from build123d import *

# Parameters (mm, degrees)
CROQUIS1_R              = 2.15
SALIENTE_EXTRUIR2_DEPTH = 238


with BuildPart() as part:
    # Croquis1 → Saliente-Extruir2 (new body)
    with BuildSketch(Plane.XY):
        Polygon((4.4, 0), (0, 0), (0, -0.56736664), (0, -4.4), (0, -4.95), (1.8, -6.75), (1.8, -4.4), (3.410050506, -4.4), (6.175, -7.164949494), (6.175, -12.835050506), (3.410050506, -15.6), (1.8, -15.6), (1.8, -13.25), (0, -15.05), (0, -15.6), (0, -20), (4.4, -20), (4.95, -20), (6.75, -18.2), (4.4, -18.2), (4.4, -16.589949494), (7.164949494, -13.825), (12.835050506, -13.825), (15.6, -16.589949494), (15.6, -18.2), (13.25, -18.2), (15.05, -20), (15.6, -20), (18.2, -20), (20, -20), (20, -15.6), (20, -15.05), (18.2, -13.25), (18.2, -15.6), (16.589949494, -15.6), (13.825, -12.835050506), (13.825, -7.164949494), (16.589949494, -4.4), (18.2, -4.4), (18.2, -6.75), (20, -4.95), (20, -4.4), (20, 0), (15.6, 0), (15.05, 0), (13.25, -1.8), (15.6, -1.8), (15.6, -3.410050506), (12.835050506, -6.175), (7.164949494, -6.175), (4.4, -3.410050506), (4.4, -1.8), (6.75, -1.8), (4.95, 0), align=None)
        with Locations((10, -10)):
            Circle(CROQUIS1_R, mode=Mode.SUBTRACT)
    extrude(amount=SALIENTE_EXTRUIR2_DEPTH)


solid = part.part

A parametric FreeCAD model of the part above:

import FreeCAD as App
import Part
import Sketcher
from FreeCAD import Vector
Q = App.Units.Quantity

doc = App.newDocument("Part")
body = doc.addObject("PartDesign::Body", "Body")

sketch1 = doc.addObject("Sketcher::SketchObject", "Sketch")
body.addObject(sketch1)
sketch1.AttachmentSupport = (doc.XY_Plane, [""])
sketch1.MapMode = "FlatFace"
sketch1.addGeometry([
    Part.LineSegment(Vector(0, 0, 0), Vector(0, -5, 0)),
    Part.LineSegment(Vector(0, -5, 0), Vector(1.8, -6.8, 0)),
    Part.LineSegment(Vector(1.8, -6.8, 0), Vector(1.8, -4.4, 0)),
    Part.LineSegment(Vector(1.8, -4.4, 0), Vector(3.4, -4.4, 0)),
    Part.LineSegment(Vector(3.4, -4.4, 0), Vector(6.2, -7.2, 0)),
    Part.LineSegment(Vector(6.2, -7.2, 0), Vector(6.2, -12.8, 0)),
    Part.LineSegment(Vector(6.2, -12.8, 0), Vector(3.4, -15.6, 0)),
    Part.LineSegment(Vector(3.4, -15.6, 0), Vector(1.8, -15.6, 0)),
    Part.LineSegment(Vector(1.8, -15.6, 0), Vector(1.8, -13.2, 0)),
    Part.LineSegment(Vector(1.8, -13.2, 0), Vector(0, -15.1, 0)),
    Part.LineSegment(Vector(0, -15.1, 0), Vector(0, -20, 0)),
    Part.LineSegment(Vector(0, -20, 0), Vector(5, -20, 0)),
    Part.LineSegment(Vector(5, -20, 0), Vector(6.8, -18.2, 0)),
    Part.LineSegment(Vector(6.8, -18.2, 0), Vector(4.4, -18.2, 0)),
    Part.LineSegment(Vector(4.4, -18.2, 0), Vector(4.4, -16.6, 0)),
    Part.LineSegment(Vector(4.4, -16.6, 0), Vector(7.2, -13.8, 0)),
    Part.LineSegment(Vector(7.2, -13.8, 0), Vector(12.8, -13.8, 0)),
    Part.LineSegment(Vector(12.8, -13.8, 0), Vector(15.6, -16.6, 0)),
    Part.LineSegment(Vector(15.6, -16.6, 0), Vector(15.6, -18.2, 0)),
    Part.LineSegment(Vector(15.6, -18.2, 0), Vector(13.2, -18.2, 0)),
    Part.LineSegment(Vector(13.2, -18.2, 0), Vector(15.1, -20, 0)),
    Part.LineSegment(Vector(15.1, -20, 0), Vector(20, -20, 0)),
    Part.LineSegment(Vector(20, -20, 0), Vector(20, -15.1, 0)),
    Part.LineSegment(Vector(20, -15.1, 0), Vector(18.2, -13.2, 0)),
    Part.LineSegment(Vector(18.2, -13.2, 0), Vector(18.2, -15.6, 0)),
    Part.LineSegment(Vector(18.2, -15.6, 0), Vector(16.6, -15.6, 0)),
    Part.LineSegment(Vector(16.6, -15.6, 0), Vector(13.8, -12.8, 0)),
    Part.LineSegment(Vector(13.8, -12.8, 0), Vector(13.8, -7.2, 0)),
    Part.LineSegment(Vector(13.8, -7.2, 0), Vector(16.6, -4.4, 0)),
    Part.LineSegment(Vector(16.6, -4.4, 0), Vector(18.2, -4.4, 0)),
    Part.LineSegment(Vector(18.2, -4.4, 0), Vector(18.2, -6.8, 0)),
    Part.LineSegment(Vector(18.2, -6.8, 0), Vector(20, -5, 0)),
    Part.LineSegment(Vector(20, -5, 0), Vector(20, 0, 0)),
    Part.LineSegment(Vector(20, 0, 0), Vector(15.1, 0, 0)),
    Part.LineSegment(Vector(15.1, 0, 0), Vector(13.2, -1.8, 0)),
    Part.LineSegment(Vector(13.2, -1.8, 0), Vector(15.6, -1.8, 0)),
    Part.LineSegment(Vector(15.6, -1.8, 0), Vector(15.6, -3.4, 0)),
    Part.LineSegment(Vector(15.6, -3.4, 0), Vector(12.8, -6.2, 0)),
    Part.LineSegment(Vector(12.8, -6.2, 0), Vector(7.2, -6.2, 0)),
    Part.LineSegment(Vector(7.2, -6.2, 0), Vector(4.4, -3.4, 0)),
    Part.LineSegment(Vector(4.4, -3.4, 0), Vector(4.4, -1.8, 0)),
    Part.LineSegment(Vector(4.4, -1.8, 0), Vector(6.8, -1.8, 0)),
    Part.LineSegment(Vector(6.8, -1.8, 0), Vector(5, 0, 0)),
    Part.LineSegment(Vector(5, 0, 0), Vector(0, 0, 0)),
    Part.Circle(Vector(10, -10, 0), Vector(0, 0, 1), 2.1),
], False)
sketch1.addConstraint([
    Sketcher.Constraint("Coincident", 0, 2, 1, 1),
    Sketcher.Constraint("Coincident", 1, 2, 2, 1),
    Sketcher.Constraint("Coincident", 2, 2, 3, 1),
    Sketcher.Constraint("Coincident", 3, 2, 4, 1),
    Sketcher.Constraint("Coincident", 4, 2, 5, 1),
    Sketcher.Constraint("Coincident", 5, 2, 6, 1),
    Sketcher.Constraint("Coincident", 6, 2, 7, 1),
    Sketcher.Constraint("Coincident", 7, 2, 8, 1),
    Sketcher.Constraint("Coincident", 8, 2, 9, 1),
    Sketcher.Constraint("Coincident", 9, 2, 10, 1),
    Sketcher.Constraint("Coincident", 10, 2, 11, 1),
    Sketcher.Constraint("Coincident", 11, 2, 12, 1),
    Sketcher.Constraint("Coincident", 12, 2, 13, 1),
    Sketcher.Constraint("Coincident", 13, 2, 14, 1),
    Sketcher.Constraint("Coincident", 14, 2, 15, 1),
    Sketcher.Constraint("Coincident", 15, 2, 16, 1),
    Sketcher.Constraint("Coincident", 16, 2, 17, 1),
    Sketcher.Constraint("Coincident", 17, 2, 18, 1),
    Sketcher.Constraint("Coincident", 18, 2, 19, 1),
    Sketcher.Constraint("Coincident", 19, 2, 20, 1),
    Sketcher.Constraint("Coincident", 20, 2, 21, 1),
    Sketcher.Constraint("Coincident", 21, 2, 22, 1),
    Sketcher.Constraint("Coincident", 22, 2, 23, 1),
    Sketcher.Constraint("Coincident", 23, 2, 24, 1),
    Sketcher.Constraint("Coincident", 24, 2, 25, 1),
    Sketcher.Constraint("Coincident", 25, 2, 26, 1),
    Sketcher.Constraint("Coincident", 26, 2, 27, 1),
    Sketcher.Constraint("Coincident", 27, 2, 28, 1),
    Sketcher.Constraint("Coincident", 28, 2, 29, 1),
    Sketcher.Constraint("Coincident", 29, 2, 30, 1),
    Sketcher.Constraint("Coincident", 30, 2, 31, 1),
    Sketcher.Constraint("Coincident", 31, 2, 32, 1),
    Sketcher.Constraint("Coincident", 32, 2, 33, 1),
    Sketcher.Constraint("Coincident", 33, 2, 34, 1),
    Sketcher.Constraint("Coincident", 34, 2, 35, 1),
    Sketcher.Constraint("Coincident", 35, 2, 36, 1),
    Sketcher.Constraint("Coincident", 36, 2, 37, 1),
    Sketcher.Constraint("Coincident", 37, 2, 38, 1),
    Sketcher.Constraint("Coincident", 38, 2, 39, 1),
    Sketcher.Constraint("Coincident", 39, 2, 40, 1),
    Sketcher.Constraint("Coincident", 40, 2, 41, 1),
    Sketcher.Constraint("Coincident", 41, 2, 42, 1),
    Sketcher.Constraint("Coincident", 42, 2, 43, 1),
    Sketcher.Constraint("Coincident", 43, 2, 0, 1),
    Sketcher.Constraint("Vertical", 0),
    Sketcher.Constraint("Vertical", 2),
    Sketcher.Constraint("Horizontal", 3),
    Sketcher.Constraint("Vertical", 5),
    Sketcher.Constraint("Horizontal", 7),
    Sketcher.Constraint("Vertical", 8),
    Sketcher.Constraint("Vertical", 10),
    Sketcher.Constraint("Horizontal", 11),
    Sketcher.Constraint("Horizontal", 13),
    Sketcher.Constraint("Vertical", 14),
    Sketcher.Constraint("Horizontal", 16),
    Sketcher.Constraint("Vertical", 18),
    Sketcher.Constraint("Horizontal", 19),
    Sketcher.Constraint("Horizontal", 21),
    Sketcher.Constraint("Vertical", 22),
    Sketcher.Constraint("Vertical", 24),
    Sketcher.Constraint("Horizontal", 25),
    Sketcher.Constraint("Vertical", 27),
    Sketcher.Constraint("Horizontal", 29),
    Sketcher.Constraint("Vertical", 30),
    Sketcher.Constraint("Vertical", 32),
    Sketcher.Constraint("Horizontal", 33),
    Sketcher.Constraint("Horizontal", 35),
    Sketcher.Constraint("Vertical", 36),
    Sketcher.Constraint("Horizontal", 38),
    Sketcher.Constraint("Vertical", 40),
    Sketcher.Constraint("Horizontal", 41),
    Sketcher.Constraint("Horizontal", 43),
    Sketcher.Constraint("Coincident", 43, 2, -1, 1),
    Sketcher.Constraint("PointOnObject", 9, 2, -2),
    Sketcher.Constraint("PointOnObject", 32, 2, -1),
    Sketcher.Constraint("Parallel", 1, 4),
    Sketcher.Constraint("Perpendicular", 4, 6),
    Sketcher.Constraint("Parallel", 6, 9),
    Sketcher.Constraint("Parallel", 9, 12),
    Sketcher.Constraint("Parallel", 12, 15),
    Sketcher.Constraint("Perpendicular", 15, 17),
    Sketcher.Constraint("Parallel", 17, 20),
    Sketcher.Constraint("Parallel", 20, 23),
    Sketcher.Constraint("Parallel", 23, 26),
    Sketcher.Constraint("Perpendicular", 26, 28),
    Sketcher.Constraint("Parallel", 28, 31),
    Sketcher.Constraint("Parallel", 31, 34),
    Sketcher.Constraint("Parallel", 34, 37),
    Sketcher.Constraint("Perpendicular", 37, 39),
    Sketcher.Constraint("Parallel", 39, 42),
    Sketcher.Constraint("Horizontal", 14, 2, 17, 2),
    Sketcher.Constraint("Horizontal", 13, 2, 18, 2),
    Sketcher.Constraint("Horizontal", 11, 2, 20, 2),
    Sketcher.Constraint("Horizontal", 9, 2, 22, 2),
    Sketcher.Constraint("Horizontal", 8, 2, 23, 2),
    Sketcher.Constraint("Horizontal", 7, 2, 24, 2),
    Sketcher.Constraint("Horizontal", 5, 2, 26, 2),
    Sketcher.Constraint("Horizontal", 4, 2, 27, 2),
    Sketcher.Constraint("Horizontal", 3, 2, 28, 2),
    Sketcher.Constraint("Horizontal", 1, 2, 30, 2),
    Sketcher.Constraint("Horizontal", 0, 2, 31, 2),
    Sketcher.Constraint("Horizontal", 36, 2, 39, 2),
    Sketcher.Constraint("Horizontal", 35, 2, 40, 2),
    Sketcher.Constraint("Vertical", 3, 2, 6, 2),
    Sketcher.Constraint("Vertical", 2, 2, 7, 2),
    Sketcher.Constraint("Vertical", 25, 2, 28, 2),
    Sketcher.Constraint("Vertical", 24, 2, 29, 2),
    Sketcher.Constraint("Vertical", 20, 2, 33, 2),
    Sketcher.Constraint("Vertical", 19, 2, 34, 2),
    Sketcher.Constraint("Vertical", 18, 2, 35, 2),
    Sketcher.Constraint("Vertical", 16, 2, 37, 2),
    Sketcher.Constraint("Vertical", 15, 2, 38, 2),
    Sketcher.Constraint("Vertical", 12, 2, 41, 2),
    Sketcher.Constraint("Equal", 13, 19),
    Sketcher.Constraint("Equal", 11, 21),
    Sketcher.Constraint("Equal", 7, 25),
    Sketcher.Constraint("Equal", 43, 0),
    Sketcher.Constraint("Equal", 41, 2),
    Sketcher.Constraint("Equal", 38, 5),
    Sketcher.Constraint("Equal", 2, 8),
    Sketcher.Constraint("Equal", 0, 10),
    Sketcher.Constraint("Equal", 29, 14),
    Sketcher.Constraint("Equal", 18, 36),
    Sketcher.Constraint("Equal", 9, 12),
    Sketcher.Constraint("Equal", 6, 15),
    Sketcher.Constraint("Diameter", 44, Q("4.3 mm")),
    Sketcher.Constraint("DistanceX", -1, 1, 44, 3, Q("10 mm")),
    Sketcher.Constraint("DistanceY", 44, 3, -1, 1, Q("10 mm")),
    Sketcher.Constraint("DistanceY", 10, 2, -1, 1, Q("20 mm")),
    Sketcher.Constraint("DistanceX", 11, 1, 11, 2, Q("4.95 mm")),
    Sketcher.Constraint("DistanceX", 13, 2, 13, 1, Q("2.35 mm")),
    Sketcher.Constraint("DistanceX", -1, 1, 1, 2, Q("1.8 mm")),
    Sketcher.Constraint("DistanceX", 4, 2, 27, 2, Q("7.65 mm")),
    Sketcher.Constraint("DistanceX", 16, 1, 16, 2, Q("5.670101 mm")),
])
pad1 = doc.addObject("PartDesign::Pad", "Pad")
body.addObject(pad1)
pad1.Profile = sketch1
pad1.Length = 238

doc.recompute()
